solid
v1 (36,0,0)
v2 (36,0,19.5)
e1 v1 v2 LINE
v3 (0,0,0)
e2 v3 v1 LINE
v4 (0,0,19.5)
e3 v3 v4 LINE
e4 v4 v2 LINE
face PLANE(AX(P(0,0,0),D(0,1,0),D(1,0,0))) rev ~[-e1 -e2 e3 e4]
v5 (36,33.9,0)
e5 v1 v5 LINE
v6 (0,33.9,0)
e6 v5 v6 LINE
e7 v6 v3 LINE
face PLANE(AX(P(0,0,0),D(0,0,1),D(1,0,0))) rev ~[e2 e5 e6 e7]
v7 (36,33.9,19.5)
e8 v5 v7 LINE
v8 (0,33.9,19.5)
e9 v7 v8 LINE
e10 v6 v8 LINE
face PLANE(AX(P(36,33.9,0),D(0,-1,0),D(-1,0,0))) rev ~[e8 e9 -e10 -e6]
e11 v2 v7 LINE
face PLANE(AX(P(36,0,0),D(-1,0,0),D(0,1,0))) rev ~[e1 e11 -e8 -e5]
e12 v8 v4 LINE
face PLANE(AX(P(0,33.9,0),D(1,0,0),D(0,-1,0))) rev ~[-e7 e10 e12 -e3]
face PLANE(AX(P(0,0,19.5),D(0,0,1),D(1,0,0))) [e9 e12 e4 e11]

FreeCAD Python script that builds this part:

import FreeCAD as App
import Part
import Sketcher
from FreeCAD import Vector
Q = App.Units.Quantity


def add_polygon(sketch, points):
    """Adds a closed chain of lines whose ends are joined by coincident constraints."""
    first, n = sketch.GeometryCount, len(points)
    for a, b in zip(points, points[1:] + points[:1]):
        sketch.addGeometry(Part.LineSegment(App.Vector(*a, 0), App.Vector(*b, 0)), False)
    for i in range(n):
        sketch.addConstraint(Sketcher.Constraint("Coincident", first + i, 2, first + (i + 1) % n, 1))

doc = App.newDocument("Part")
body = doc.addObject("PartDesign::Body", "Body")

# Sketch on XY plane
sketch1 = body.newObject("Sketcher::SketchObject", "Sketch")
sketch1.AttachmentSupport = (doc.getObject("XY_Plane"), [""])
sketch1.MapMode = "FlatFace"
add_polygon(sketch1, [(0, 34), (0, 0), (36, 0), (36, 34)])  # lines 0-3
sketch1.addConstraint([
    Sketcher.Constraint("Vertical", 0),
    Sketcher.Constraint("Horizontal", 1),
    Sketcher.Constraint("Vertical", 2),
    Sketcher.Constraint("Horizontal", 3),
    Sketcher.Constraint("Coincident", 0, 2, -1, 1),
    Sketcher.Constraint("DistanceX", 1, 1, 1, 2, Q("36 mm")),
    Sketcher.Constraint("DistanceY", 0, 2, 0, 1, Q("33.9 mm")),
])
pad1 = body.newObject("PartDesign::Pad", "Pad")
pad1.Profile = sketch1
pad1.Length = 19.5

doc.recompute()
